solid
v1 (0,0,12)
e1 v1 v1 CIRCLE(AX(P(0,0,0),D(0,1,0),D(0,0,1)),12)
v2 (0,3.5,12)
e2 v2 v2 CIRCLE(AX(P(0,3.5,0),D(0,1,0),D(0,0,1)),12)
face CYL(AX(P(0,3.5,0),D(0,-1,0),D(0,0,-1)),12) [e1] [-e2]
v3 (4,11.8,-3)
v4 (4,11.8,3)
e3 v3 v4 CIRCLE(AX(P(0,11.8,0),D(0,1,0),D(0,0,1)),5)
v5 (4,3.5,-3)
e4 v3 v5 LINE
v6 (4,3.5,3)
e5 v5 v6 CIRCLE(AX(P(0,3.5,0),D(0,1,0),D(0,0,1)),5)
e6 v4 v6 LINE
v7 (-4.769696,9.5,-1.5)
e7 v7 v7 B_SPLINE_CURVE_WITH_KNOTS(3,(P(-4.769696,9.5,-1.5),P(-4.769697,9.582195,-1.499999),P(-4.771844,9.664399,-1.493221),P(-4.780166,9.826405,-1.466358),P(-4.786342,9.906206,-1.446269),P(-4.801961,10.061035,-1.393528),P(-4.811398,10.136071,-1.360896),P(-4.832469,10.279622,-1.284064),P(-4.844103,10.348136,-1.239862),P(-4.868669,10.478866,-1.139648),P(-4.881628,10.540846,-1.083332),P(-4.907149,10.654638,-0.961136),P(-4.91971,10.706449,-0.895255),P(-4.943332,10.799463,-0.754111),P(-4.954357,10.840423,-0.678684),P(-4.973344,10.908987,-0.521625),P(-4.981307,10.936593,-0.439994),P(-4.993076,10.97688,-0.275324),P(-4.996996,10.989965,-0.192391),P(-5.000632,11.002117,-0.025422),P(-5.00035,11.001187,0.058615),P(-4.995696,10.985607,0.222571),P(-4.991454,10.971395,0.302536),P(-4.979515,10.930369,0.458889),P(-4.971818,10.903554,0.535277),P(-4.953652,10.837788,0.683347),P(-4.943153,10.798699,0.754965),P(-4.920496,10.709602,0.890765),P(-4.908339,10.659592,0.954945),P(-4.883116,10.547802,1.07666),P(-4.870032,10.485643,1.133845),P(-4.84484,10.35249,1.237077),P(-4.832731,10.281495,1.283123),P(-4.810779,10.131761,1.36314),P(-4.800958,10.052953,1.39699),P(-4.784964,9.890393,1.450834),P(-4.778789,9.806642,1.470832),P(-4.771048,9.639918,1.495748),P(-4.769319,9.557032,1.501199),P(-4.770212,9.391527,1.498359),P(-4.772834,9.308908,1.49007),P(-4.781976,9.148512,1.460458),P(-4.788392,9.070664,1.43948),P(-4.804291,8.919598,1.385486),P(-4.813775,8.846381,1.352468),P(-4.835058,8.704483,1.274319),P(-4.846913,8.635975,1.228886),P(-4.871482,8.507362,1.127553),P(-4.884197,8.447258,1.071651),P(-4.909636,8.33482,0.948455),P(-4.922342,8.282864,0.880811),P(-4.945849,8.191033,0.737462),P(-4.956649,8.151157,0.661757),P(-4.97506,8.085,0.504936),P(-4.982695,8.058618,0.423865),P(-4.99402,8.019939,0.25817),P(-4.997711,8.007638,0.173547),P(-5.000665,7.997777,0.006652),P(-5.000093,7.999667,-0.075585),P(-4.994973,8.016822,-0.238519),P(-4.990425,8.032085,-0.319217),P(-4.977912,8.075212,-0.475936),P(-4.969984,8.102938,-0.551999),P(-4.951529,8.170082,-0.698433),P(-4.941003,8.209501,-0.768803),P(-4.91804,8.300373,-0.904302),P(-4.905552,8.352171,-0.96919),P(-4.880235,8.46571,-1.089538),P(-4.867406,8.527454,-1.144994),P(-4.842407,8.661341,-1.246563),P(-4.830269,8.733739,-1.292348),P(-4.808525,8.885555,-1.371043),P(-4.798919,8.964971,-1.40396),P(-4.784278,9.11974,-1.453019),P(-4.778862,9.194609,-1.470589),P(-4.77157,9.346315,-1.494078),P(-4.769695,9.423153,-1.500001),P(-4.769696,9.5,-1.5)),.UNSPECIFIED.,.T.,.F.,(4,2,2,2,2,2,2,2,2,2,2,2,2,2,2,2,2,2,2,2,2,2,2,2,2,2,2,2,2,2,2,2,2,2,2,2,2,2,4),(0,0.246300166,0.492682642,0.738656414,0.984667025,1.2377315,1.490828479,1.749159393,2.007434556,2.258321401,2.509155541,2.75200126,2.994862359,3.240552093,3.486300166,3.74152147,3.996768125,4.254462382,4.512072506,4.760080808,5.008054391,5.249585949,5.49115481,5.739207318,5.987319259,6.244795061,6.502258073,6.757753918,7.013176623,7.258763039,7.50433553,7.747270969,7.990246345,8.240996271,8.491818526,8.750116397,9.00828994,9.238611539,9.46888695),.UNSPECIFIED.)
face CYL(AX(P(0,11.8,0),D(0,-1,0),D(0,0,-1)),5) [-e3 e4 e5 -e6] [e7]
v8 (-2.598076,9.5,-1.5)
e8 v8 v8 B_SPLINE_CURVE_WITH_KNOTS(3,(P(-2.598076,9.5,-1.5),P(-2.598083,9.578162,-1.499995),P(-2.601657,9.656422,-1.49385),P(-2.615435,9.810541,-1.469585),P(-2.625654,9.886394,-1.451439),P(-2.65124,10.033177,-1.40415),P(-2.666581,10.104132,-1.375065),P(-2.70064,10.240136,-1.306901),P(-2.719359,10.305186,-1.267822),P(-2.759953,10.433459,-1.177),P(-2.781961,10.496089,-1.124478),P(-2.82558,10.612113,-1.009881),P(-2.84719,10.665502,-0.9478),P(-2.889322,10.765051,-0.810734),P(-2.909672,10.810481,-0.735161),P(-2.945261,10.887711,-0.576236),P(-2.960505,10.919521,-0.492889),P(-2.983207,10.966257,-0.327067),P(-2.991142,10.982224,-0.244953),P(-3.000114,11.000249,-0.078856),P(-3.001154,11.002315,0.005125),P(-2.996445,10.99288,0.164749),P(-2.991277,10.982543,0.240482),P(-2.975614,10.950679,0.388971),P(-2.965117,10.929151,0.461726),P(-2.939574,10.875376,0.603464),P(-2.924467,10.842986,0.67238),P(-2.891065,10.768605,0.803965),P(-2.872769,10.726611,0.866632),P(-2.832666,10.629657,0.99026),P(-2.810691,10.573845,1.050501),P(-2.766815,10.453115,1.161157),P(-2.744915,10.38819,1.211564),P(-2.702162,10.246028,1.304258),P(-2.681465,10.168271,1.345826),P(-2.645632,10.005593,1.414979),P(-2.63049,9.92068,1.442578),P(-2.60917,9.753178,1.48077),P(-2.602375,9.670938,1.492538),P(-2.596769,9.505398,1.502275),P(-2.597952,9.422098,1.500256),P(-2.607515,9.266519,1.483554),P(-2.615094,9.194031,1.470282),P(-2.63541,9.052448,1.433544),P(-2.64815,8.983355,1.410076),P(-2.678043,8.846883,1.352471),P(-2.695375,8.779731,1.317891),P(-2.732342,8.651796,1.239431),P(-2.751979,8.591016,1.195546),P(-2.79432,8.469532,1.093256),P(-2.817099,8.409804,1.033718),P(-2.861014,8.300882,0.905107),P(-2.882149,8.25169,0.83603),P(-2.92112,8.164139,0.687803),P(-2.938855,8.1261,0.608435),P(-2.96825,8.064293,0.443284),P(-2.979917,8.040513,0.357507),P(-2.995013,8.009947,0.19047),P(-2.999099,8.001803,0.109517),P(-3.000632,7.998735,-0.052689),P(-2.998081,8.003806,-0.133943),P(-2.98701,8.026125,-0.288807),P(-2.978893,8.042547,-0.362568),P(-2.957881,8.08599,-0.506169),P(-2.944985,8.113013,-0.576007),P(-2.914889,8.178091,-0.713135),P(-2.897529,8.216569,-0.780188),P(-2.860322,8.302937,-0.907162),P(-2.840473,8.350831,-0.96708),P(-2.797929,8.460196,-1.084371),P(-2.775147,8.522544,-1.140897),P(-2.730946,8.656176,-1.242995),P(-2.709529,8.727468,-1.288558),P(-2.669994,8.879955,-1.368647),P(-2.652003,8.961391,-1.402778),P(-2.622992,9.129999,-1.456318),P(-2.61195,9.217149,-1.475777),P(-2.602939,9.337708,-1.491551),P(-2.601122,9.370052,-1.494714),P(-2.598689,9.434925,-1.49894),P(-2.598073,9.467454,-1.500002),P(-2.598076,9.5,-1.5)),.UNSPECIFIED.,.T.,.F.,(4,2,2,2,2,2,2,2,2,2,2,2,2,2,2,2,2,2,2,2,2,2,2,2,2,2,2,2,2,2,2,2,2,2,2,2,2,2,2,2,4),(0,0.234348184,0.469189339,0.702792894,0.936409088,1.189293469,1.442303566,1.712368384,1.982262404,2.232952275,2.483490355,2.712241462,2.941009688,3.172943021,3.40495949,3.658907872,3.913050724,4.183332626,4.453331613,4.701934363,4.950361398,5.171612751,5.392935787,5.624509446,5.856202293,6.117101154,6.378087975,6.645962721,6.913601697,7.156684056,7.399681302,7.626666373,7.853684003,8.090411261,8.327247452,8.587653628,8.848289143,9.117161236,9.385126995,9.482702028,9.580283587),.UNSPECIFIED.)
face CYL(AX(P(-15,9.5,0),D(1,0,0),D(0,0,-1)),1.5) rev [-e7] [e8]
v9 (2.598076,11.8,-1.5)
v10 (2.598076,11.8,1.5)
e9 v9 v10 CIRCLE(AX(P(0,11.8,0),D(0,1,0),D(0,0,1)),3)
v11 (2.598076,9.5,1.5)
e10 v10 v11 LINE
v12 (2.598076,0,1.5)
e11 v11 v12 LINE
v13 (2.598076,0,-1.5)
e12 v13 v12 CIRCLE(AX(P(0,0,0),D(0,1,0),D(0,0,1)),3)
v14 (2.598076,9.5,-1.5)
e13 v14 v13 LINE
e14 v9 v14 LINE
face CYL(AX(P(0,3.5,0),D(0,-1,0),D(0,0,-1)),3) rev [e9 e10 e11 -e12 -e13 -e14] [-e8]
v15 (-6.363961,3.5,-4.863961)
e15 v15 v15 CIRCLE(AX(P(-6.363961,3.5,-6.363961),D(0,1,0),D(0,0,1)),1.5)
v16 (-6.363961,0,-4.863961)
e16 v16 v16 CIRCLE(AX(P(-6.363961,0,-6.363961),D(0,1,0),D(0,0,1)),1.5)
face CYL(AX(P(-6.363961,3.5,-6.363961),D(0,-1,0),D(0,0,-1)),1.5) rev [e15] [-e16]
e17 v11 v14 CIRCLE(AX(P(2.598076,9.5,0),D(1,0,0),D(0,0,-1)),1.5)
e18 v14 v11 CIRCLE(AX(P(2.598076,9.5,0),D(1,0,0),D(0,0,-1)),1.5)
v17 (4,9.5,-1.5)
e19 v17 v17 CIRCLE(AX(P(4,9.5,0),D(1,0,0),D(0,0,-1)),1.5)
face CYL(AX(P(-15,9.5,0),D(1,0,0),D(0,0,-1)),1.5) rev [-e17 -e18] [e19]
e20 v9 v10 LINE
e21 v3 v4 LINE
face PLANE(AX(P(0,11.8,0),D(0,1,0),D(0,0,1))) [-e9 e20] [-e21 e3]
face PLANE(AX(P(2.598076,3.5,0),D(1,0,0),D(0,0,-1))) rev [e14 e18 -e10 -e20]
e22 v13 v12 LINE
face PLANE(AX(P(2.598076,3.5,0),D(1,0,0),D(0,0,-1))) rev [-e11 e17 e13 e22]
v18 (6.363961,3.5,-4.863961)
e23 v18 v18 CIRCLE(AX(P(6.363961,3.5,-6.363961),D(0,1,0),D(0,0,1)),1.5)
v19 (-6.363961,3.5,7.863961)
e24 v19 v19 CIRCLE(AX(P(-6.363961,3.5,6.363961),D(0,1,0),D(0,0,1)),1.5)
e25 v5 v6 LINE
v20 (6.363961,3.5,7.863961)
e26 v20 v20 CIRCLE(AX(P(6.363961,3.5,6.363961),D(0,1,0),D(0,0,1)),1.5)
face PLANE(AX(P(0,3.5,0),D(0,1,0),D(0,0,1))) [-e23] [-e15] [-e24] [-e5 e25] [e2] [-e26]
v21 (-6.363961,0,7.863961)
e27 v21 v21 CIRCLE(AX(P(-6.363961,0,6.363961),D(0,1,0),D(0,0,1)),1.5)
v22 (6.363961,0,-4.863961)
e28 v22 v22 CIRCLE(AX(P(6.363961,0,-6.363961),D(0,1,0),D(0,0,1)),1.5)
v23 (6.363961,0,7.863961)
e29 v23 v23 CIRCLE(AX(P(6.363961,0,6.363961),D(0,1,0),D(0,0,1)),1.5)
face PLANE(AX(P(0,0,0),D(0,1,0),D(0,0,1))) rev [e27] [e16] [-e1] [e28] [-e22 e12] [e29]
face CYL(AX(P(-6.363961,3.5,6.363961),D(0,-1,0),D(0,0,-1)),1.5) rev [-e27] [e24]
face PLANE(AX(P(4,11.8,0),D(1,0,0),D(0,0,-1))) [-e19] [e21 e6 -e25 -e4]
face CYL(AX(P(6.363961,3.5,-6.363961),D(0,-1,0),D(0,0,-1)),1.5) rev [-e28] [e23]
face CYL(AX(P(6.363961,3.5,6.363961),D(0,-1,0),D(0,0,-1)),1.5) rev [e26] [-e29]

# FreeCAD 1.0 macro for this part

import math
import FreeCAD as App
import Part
import Sketcher
from FreeCAD import Vector

doc = App.newDocument("Part")
body = doc.addObject("PartDesign::Body", "Body")

sketch1 = doc.addObject("Sketcher::SketchObject", "Sketch")
body.addObject(sketch1)
sketch1.AttachmentSupport = (doc.XZ_Plane, [""])
sketch1.MapMode = "FlatFace"
sketch1.addGeometry([
    Part.Circle(Vector(0, 0, 0), Vector(0, 0, 1), 12),
    Part.Circle(Vector(-6.4, -6.4, 0), Vector(0, 0, 1), 1.5),
    Part.ArcOfCircle(Part.Circle(Vector(0, 0, 0), Vector(0, 0, 1), 3), math.radians(-45), math.radians(-30)),
    Part.LineSegment(Vector(2.6, -1.5, 0), Vector(2.6, 1.5, 0)),
    Part.ArcOfCircle(Part.Circle(Vector(0, 0, 0), Vector(0, 0, 1), 3), math.radians(30), math.radians(315)),
    Part.Circle(Vector(-6.4, 6.4, 0), Vector(0, 0, 1), 1.5),
    Part.Circle(Vector(6.4, -6.4, 0), Vector(0, 0, 1), 1.5),
    Part.Circle(Vector(6.4, 6.4, 0), Vector(0, 0, 1), 1.5),
], False)
sketch1.addConstraint([
    Sketcher.Constraint("Coincident", 2, 2, 3, 1),
    Sketcher.Constraint("Coincident", 3, 2, 4, 1),
    Sketcher.Constraint("Tangent", 4, 2, 2, 1),
    Sketcher.Constraint("Vertical", 3),
    Sketcher.Constraint("Coincident", 0, 3, -1, 1),
    Sketcher.Constraint("Coincident", 2, 3, -1, 1),
    Sketcher.Constraint("Equal", 2, 4),
    Sketcher.Constraint("Equal", 1, 5),
    Sketcher.Constraint("Equal", 5, 6),
    Sketcher.Constraint("Equal", 6, 7),
    Sketcher.Constraint("Symmetric", 5, 3, 6, 3, -1, 1),
    Sketcher.Constraint("Symmetric", 1, 3, 7, 3, -1, 1),
    Sketcher.Constraint("Symmetric", 1, 3, 6, 3, -2),
    Sketcher.Constraint("Diameter", 0, 24.0),
    Sketcher.Constraint("Diameter", 1, 3.0),
    Sketcher.Constraint("Radius", 2, 3.0),
    Sketcher.Constraint("DistanceY", 3, 1, 3, 2, 3.0),
    Sketcher.Constraint("DistanceX", 1, 3, -1, 1, 6.363961),
    Sketcher.Constraint("DistanceY", 1, 3, -1, 1, 6.363961),
    Sketcher.Constraint("DistanceX", -1, 1, 4, 2, 2.12132),
])
pad1 = doc.addObject("PartDesign::Pad", "Pad")
body.addObject(pad1)
pad1.Profile = sketch1
pad1.Length = 3.5
pad1.Reversed = True

sketch2 = doc.addObject("Sketcher::SketchObject", "Sketch001")
body.addObject(sketch2)
sketch2.AttachmentSupport = (doc.XZ_Plane, [""])
sketch2.MapMode = "FlatFace"
sketch2.AttachmentOffset = App.Placement(Vector(0, 0, -3.5), App.Rotation())
sketch2.addGeometry([
    Part.LineSegment(Vector(4, 3, 0), Vector(4, -3, 0)),
    Part.ArcOfCircle(Part.Circle(Vector(0, 0, 0), Vector(0, 0, 1), 5), math.radians(37), math.radians(323)),
    Part.ArcOfCircle(Part.Circle(Vector(0, 0, 0), Vector(0, 0, 1), 3), math.radians(30), math.radians(330)),
    Part.LineSegment(Vector(2.6, -1.5, 0), Vector(2.6, 1.5, 0)),
], False)
sketch2.addConstraint([
    Sketcher.Constraint("Coincident", 0, 1, 1, 1),
    Sketcher.Constraint("Coincident", 1, 2, 0, 2),
    Sketcher.Constraint("Coincident", 2, 1, 3, 2),
    Sketcher.Constraint("Coincident", 3, 1, 2, 2),
    Sketcher.Constraint("Vertical", 0),
    Sketcher.Constraint("Vertical", 3),
    Sketcher.Constraint("Coincident", 1, 3, -1, 1),
    Sketcher.Constraint("Coincident", 2, 3, -1, 1),
    Sketcher.Constraint("Radius", 1, 5.0),
    Sketcher.Constraint("Radius", 2, 3.0),
    Sketcher.Constraint("DistanceY", 0, 2, 0, 1, 6.0),
    Sketcher.Constraint("DistanceY", 3, 1, 3, 2, 3.0),
])
pad2 = doc.addObject("PartDesign::Pad", "Pad001")
body.addObject(pad2)
pad2.Profile = sketch2
pad2.Length = 8.3
pad2.Reversed = True

sketch3 = doc.addObject("Sketcher::SketchObject", "Sketch002")
body.addObject(sketch3)
sketch3.AttachmentSupport = (doc.YZ_Plane, [""])
sketch3.MapMode = "FlatFace"
sketch3.AttachmentOffset = App.Placement(Vector(0, 0, 4), App.Rotation())
sketch3.addGeometry(Part.Circle(Vector(9.5, 0, 0), Vector(0, 0, 1), 1.5), False)
sketch3.addConstraint([
    Sketcher.Constraint("PointOnObject", 0, 3, -1),
    Sketcher.Constraint("Diameter", 0, 3.0),
    Sketcher.Constraint("DistanceX", -1, 1, 0, 3, 9.5),
])
pocket1 = doc.addObject("PartDesign::Pocket", "Pocket")
body.addObject(pocket1)
pocket1.Profile = sketch3
pocket1.Length = 19

doc.recompute()
